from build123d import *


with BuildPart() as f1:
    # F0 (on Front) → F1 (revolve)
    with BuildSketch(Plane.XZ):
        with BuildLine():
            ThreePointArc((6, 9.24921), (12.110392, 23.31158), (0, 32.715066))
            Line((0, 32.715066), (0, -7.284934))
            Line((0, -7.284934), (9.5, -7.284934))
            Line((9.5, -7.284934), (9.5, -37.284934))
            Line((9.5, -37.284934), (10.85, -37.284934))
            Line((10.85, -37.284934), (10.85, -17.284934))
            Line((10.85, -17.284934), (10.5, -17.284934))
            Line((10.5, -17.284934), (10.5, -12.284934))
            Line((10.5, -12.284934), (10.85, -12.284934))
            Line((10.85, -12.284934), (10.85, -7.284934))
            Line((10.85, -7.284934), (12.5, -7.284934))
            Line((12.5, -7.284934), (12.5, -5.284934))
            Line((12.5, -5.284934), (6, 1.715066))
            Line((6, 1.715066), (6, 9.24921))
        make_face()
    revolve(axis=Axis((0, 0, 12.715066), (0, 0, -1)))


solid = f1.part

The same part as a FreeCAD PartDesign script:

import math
import FreeCAD as App
import Part
import Sketcher

doc = App.newDocument("Part")
body = doc.addObject("PartDesign::Body", "Body")

# Sketch on XZ plane
sketch1 = body.newObject("Sketcher::SketchObject", "Sketch")
sketch1.AttachmentSupport = (doc.getObject("XZ_Plane"), [""])
sketch1.MapMode = "FlatFace"
sketch1.addGeometry(Part.ArcOfCircle(Part.Circle(App.Vector(0, 20.22, 0), App.Vector(0, 0, 1), 12.5), math.radians(-61), math.radians(90)), False)
sketch1.addGeometry(Part.LineSegment(App.Vector(0, 32.72, 0), App.Vector(0, -7.28, 0)), False)
sketch1.addGeometry(Part.LineSegment(App.Vector(0, -7.28, 0), App.Vector(9.5, -7.28, 0)), False)
sketch1.addGeometry(Part.LineSegment(App.Vector(9.5, -7.28, 0), App.Vector(9.5, -37.28, 0)), False)
sketch1.addGeometry(Part.LineSegment(App.Vector(9.5, -37.28, 0), App.Vector(10.85, -37.28, 0)), False)
sketch1.addGeometry(Part.LineSegment(App.Vector(10.85, -37.28, 0), App.Vector(10.85, -17.28, 0)), False)
sketch1.addGeometry(Part.LineSegment(App.Vector(10.85, -17.28, 0), App.Vector(10.5, -17.28, 0)), False)
sketch1.addGeometry(Part.LineSegment(App.Vector(10.5, -17.28, 0), App.Vector(10.5, -12.28, 0)), False)
sketch1.addGeometry(Part.LineSegment(App.Vector(10.5, -12.28, 0), App.Vector(10.85, -12.28, 0)), False)
sketch1.addGeometry(Part.LineSegment(App.Vector(10.85, -12.28, 0), App.Vector(10.85, -7.28, 0)), False)
sketch1.addGeometry(Part.LineSegment(App.Vector(10.85, -7.28, 0), App.Vector(12.5, -7.28, 0)), False)
sketch1.addGeometry(Part.LineSegment(App.Vector(12.5, -7.28, 0), App.Vector(12.5, -5.28, 0)), False)
sketch1.addGeometry(Part.LineSegment(App.Vector(12.5, -5.28, 0), App.Vector(6, 1.72, 0)), False)
sketch1.addGeometry(Part.LineSegment(App.Vector(6, 1.72, 0), App.Vector(6, 9.25, 0)), False)
sketch1.addConstraint(Sketcher.Constraint("Coincident", 0, 2, 1, 1))
sketch1.addConstraint(Sketcher.Constraint("Coincident", 1, 2, 2, 1))
sketch1.addConstraint(Sketcher.Constraint("Coincident", 2, 2, 3, 1))
sketch1.addConstraint(Sketcher.Constraint("Coincident", 3, 2, 4, 1))
sketch1.addConstraint(Sketcher.Constraint("Coincident", 4, 2, 5, 1))
sketch1.addConstraint(Sketcher.Constraint("Coincident", 5, 2, 6, 1))
sketch1.addConstraint(Sketcher.Constraint("Coincident", 6, 2, 7, 1))
sketch1.addConstraint(Sketcher.Constraint("Coincident", 7, 2, 8, 1))
sketch1.addConstraint(Sketcher.Constraint("Coincident", 8, 2, 9, 1))
sketch1.addConstraint(Sketcher.Constraint("Coincident", 9, 2, 10, 1))
sketch1.addConstraint(Sketcher.Constraint("Coincident", 10, 2, 11, 1))
sketch1.addConstraint(Sketcher.Constraint("Coincident", 11, 2, 12, 1))
sketch1.addConstraint(Sketcher.Constraint("Coincident", 12, 2, 13, 1))
sketch1.addConstraint(Sketcher.Constraint("Coincident", 13, 2, 0, 1))
sketch1.addConstraint(Sketcher.Constraint("Vertical", 1))
sketch1.addConstraint(Sketcher.Constraint("Horizontal", 2))
sketch1.addConstraint(Sketcher.Constraint("Vertical", 3))
sketch1.addConstraint(Sketcher.Constraint("Horizontal", 4))
sketch1.addConstraint(Sketcher.Constraint("Vertical", 5))
sketch1.addConstraint(Sketcher.Constraint("Horizontal", 6))
sketch1.addConstraint(Sketcher.Constraint("Vertical", 7))
sketch1.addConstraint(Sketcher.Constraint("Horizontal", 8))
sketch1.addConstraint(Sketcher.Constraint("Vertical", 9))
sketch1.addConstraint(Sketcher.Constraint("Horizontal", 10))
sketch1.addConstraint(Sketcher.Constraint("Vertical", 11))
sketch1.addConstraint(Sketcher.Constraint("Vertical", 13))
sketch1.addConstraint(Sketcher.Constraint("PointOnObject", 0, 3, -2))
sketch1.addConstraint(Sketcher.Constraint("PointOnObject", 0, 2, -2))
sketch1.addConstraint(Sketcher.Constraint("Horizontal", 2, 2, 9, 2))
sketch1.addConstraint(Sketcher.Constraint("Vertical", 5, 2, 8, 2))
sketch1.addConstraint(Sketcher.Constraint("Equal", 7, 9))
sketch1.addConstraint(Sketcher.Constraint("Radius", 0, 12.5))
sketch1.addConstraint(Sketcher.Constraint("DistanceY", 1, 2, 1, 1, 40.0))
sketch1.addConstraint(Sketcher.Constraint("DistanceY", 3, 2, 3, 1, 30.0))
sketch1.addConstraint(Sketcher.Constraint("DistanceY", 5, 1, 5, 2, 20.0))
sketch1.addConstraint(Sketcher.Constraint("DistanceY", 11, 1, 11, 2, 2.0))
sketch1.addConstraint(Sketcher.Constraint("DistanceX", 2, 1, 2, 2, 9.5))
sketch1.addConstraint(Sketcher.Constraint("DistanceX", -1, 1, 12, 2, 6.0))
sketch1.addConstraint(Sketcher.Constraint("DistanceX", 2, 2, 6, 2, 1.0))
sketch1.addConstraint(Sketcher.Constraint("DistanceX", 2, 2, 10, 2, 3.0))
sketch1.addConstraint(Sketcher.Constraint("DistanceY", 11, 2, 12, 2, 7.0))
sketch1.addConstraint(Sketcher.Constraint("DistanceX", 4, 1, 4, 2, 1.35))
sketch1.addConstraint(Sketcher.Constraint("DistanceY", -1, 1, 13, 2, 9.24921))
revolution = body.newObject("PartDesign::Revolution", "Revolution")
revolution.Profile = sketch1
revolution.ReferenceAxis = (sketch1, ["V_Axis"])
revolution.Angle = 360

doc.recompute()
